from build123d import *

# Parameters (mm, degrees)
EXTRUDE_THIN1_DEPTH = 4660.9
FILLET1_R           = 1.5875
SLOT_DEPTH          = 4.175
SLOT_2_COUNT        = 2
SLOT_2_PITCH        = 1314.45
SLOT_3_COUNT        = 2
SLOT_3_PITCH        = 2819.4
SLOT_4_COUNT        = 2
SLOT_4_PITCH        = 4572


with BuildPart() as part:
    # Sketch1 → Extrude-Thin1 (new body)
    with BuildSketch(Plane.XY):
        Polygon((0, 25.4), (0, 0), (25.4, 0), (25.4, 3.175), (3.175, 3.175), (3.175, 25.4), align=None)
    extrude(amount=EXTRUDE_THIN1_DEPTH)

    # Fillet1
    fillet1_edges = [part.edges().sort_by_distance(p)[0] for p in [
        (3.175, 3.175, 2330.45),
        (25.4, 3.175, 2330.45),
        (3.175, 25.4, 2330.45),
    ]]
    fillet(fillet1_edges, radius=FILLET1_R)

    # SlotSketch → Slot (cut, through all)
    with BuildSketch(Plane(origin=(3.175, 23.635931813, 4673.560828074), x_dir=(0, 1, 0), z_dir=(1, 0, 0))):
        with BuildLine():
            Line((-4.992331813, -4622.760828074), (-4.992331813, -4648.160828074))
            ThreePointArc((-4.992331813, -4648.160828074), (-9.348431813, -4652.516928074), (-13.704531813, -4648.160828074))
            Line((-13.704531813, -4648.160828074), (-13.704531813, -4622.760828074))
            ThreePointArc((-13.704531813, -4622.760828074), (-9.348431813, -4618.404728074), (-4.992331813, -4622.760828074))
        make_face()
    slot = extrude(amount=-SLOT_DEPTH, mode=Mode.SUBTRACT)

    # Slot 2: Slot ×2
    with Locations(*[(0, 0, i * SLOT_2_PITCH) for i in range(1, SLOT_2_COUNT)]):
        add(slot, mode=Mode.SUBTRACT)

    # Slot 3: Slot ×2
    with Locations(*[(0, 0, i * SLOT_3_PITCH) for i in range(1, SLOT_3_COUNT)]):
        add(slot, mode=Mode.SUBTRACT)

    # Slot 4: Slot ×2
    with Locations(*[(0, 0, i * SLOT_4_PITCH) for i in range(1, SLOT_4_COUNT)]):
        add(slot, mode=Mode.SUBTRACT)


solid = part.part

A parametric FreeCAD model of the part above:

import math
import FreeCAD as App
import Part
import Sketcher
from FreeCAD import Vector
Q = App.Units.Quantity


def edges_at(feature, points):
    """Names of the edges that pass closest to the given points."""
    edges = feature.Shape.Edges
    near = lambda p: min(range(len(edges)), key=lambda i: edges[i].distToShape(Part.Vertex(*p))[0])
    return sorted({f"Edge{near(p) + 1}" for p in points})


def add_polygon(sketch, points):
    """Adds a closed chain of lines whose ends are joined by coincident constraints."""
    first, n = sketch.GeometryCount, len(points)
    for a, b in zip(points, points[1:] + points[:1]):
        sketch.addGeometry(Part.LineSegment(App.Vector(*a, 0), App.Vector(*b, 0)), False)
    for i in range(n):
        sketch.addConstraint(Sketcher.Constraint("Coincident", first + i, 2, first + (i + 1) % n, 1))

doc = App.newDocument("Part")
params = doc.addObject("Spreadsheet::Sheet", "Params")
for row, (alias, value) in enumerate([
    ("sketch1_width", "1 in"),
    ("sketch1_width2", "0.875 in"),
    ("pad1_length", "183.5 in"),
    ("fillet_radius", "0.0625 in"),
    ("sketch2_height", "1 in"),
    ("linearpattern_pitch", "51.75 in"),
    ("linearpattern2_pitch", "111 in"),
    ("linearpattern3_pitch", "180 in"),
], start=1):
    params.set(f"A{row}", alias)
    params.set(f"B{row}", "=" + value)
    params.setAlias(f"B{row}", alias)

body = doc.addObject("PartDesign::Body", "Body")

sketch1 = doc.addObject("Sketcher::SketchObject", "Sketch")
body.addObject(sketch1)
sketch1.AttachmentSupport = (doc.XY_Plane, [""])
sketch1.MapMode = "FlatFace"
add_polygon(sketch1, [(0, 25.4), (0, 0), (25.4, 0), (25.4, 3.175), (3.175, 3.175), (3.175, 25.4)])
sketch1.addConstraint(Sketcher.Constraint("Vertical", 0))
sketch1.addConstraint(Sketcher.Constraint("Horizontal", 1))
sketch1.addConstraint(Sketcher.Constraint("Vertical", 2))
sketch1.addConstraint(Sketcher.Constraint("Horizontal", 3))
sketch1.addConstraint(Sketcher.Constraint("Vertical", 4))
sketch1.addConstraint(Sketcher.Constraint("Horizontal", 5))
sketch1.addConstraint(Sketcher.Constraint("Coincident", 0, 2, -1, 1))
sketch1.addConstraint(Sketcher.Constraint("Equal", 1, 0))
sketch1.addConstraint(Sketcher.Constraint("Equal", 5, 2))
sketch1.addConstraint(Sketcher.Constraint("DistanceX", 1, 1, 1, 2, Q("1 in")))
sketch1.addConstraint(Sketcher.Constraint("DistanceX", 3, 2, 3, 1, Q("0.875 in")))
sketch1.setExpression("Constraints[15]", "Params.sketch1_width")
sketch1.setExpression("Constraints[16]", "Params.sketch1_width2")
pad1 = doc.addObject("PartDesign::Pad", "Pad")
body.addObject(pad1)
pad1.Profile = sketch1
pad1.setExpression("Length", "Params.pad1_length")
doc.recompute()

fillet = doc.addObject("PartDesign::Fillet", "Fillet")
body.addObject(fillet)
fillet.Base = (pad1, edges_at(pad1, [(3.175, 3.175, 2330.45), (25.4, 3.175, 2330.45), (3.175, 25.4, 2330.45)]))
fillet.setExpression("Radius", "Params.fillet_radius")

sketch2 = doc.addObject("Sketcher::SketchObject", "Sketch001")
body.addObject(sketch2)
sketch2.AttachmentSupport = (doc.YZ_Plane, [""])
sketch2.MapMode = "FlatFace"
sketch2.AttachmentOffset = App.Placement(Vector(0, 0, 0.125 * 25.4), App.Rotation())
sketch2.addGeometry(Part.LineSegment(Vector(18.6436, 25.4, 0), Vector(18.6436, 50.8, 0)), False)
sketch2.addGeometry(Part.ArcOfCircle(Part.Circle(Vector(14.2875, 50.8, 0), Vector(0, 0, 1), 4.3561), math.radians(0), math.radians(180)), False)
sketch2.addGeometry(Part.LineSegment(Vector(9.9314, 50.8, 0), Vector(9.9314, 25.4, 0)), False)
sketch2.addGeometry(Part.ArcOfCircle(Part.Circle(Vector(14.2875, 25.4, 0), Vector(0, 0, 1), 4.3561), math.radians(180), math.radians(360)), False)
sketch2.addConstraint(Sketcher.Constraint("Tangent", 0, 2, 1, 1))
sketch2.addConstraint(Sketcher.Constraint("Tangent", 1, 2, 2, 1))
sketch2.addConstraint(Sketcher.Constraint("Tangent", 2, 2, 3, 1))
sketch2.addConstraint(Sketcher.Constraint("Tangent", 3, 2, 0, 1))
sketch2.addConstraint(Sketcher.Constraint("Vertical", 0))
sketch2.addConstraint(Sketcher.Constraint("Vertical", 2))
sketch2.addConstraint(Sketcher.Constraint("DistanceY", 0, 1, 0, 2, Q("1 in")))
sketch2.addConstraint(Sketcher.Constraint("DistanceY", -1, 1, 1, 3, Q("2 in")))
sketch2.addConstraint(Sketcher.Constraint("Radius", 1, Q("0.1715 in")))
sketch2.addConstraint(Sketcher.Constraint("DistanceX", -1, 1, 1, 3, Q("0.5625 in")))
sketch2.setExpression("Constraints[6]", "Params.sketch2_height")
pocket1 = doc.addObject("PartDesign::Pocket", "Pocket")
body.addObject(pocket1)
pocket1.Profile = sketch2
pocket1.Type = "ThroughAll"
doc.recompute()

linearpattern = doc.addObject("PartDesign::LinearPattern", "LinearPattern")
body.addObject(linearpattern)
linearpattern.Originals = [pocket1]
linearpattern.Direction = (doc.Z_Axis, [""])
linearpattern.Mode = "offset"
linearpattern.setExpression("Offset", "Params.linearpattern_pitch")
linearpattern.Occurrences = 2
body.Tip = linearpattern
doc.recompute()

linearpattern2 = doc.addObject("PartDesign::LinearPattern", "LinearPattern001")
body.addObject(linearpattern2)
linearpattern2.Originals = [pocket1]
linearpattern2.Direction = (doc.Z_Axis, [""])
linearpattern2.Mode = "offset"
linearpattern2.setExpression("Offset", "Params.linearpattern2_pitch")
linearpattern2.Occurrences = 2
body.Tip = linearpattern2
doc.recompute()

linearpattern3 = doc.addObject("PartDesign::LinearPattern", "LinearPattern002")
body.addObject(linearpattern3)
linearpattern3.Originals = [pocket1]
linearpattern3.Direction = (doc.Z_Axis, [""])
linearpattern3.Mode = "offset"
linearpattern3.setExpression("Offset", "Params.linearpattern3_pitch")
linearpattern3.Occurrences = 2
body.Tip = linearpattern3

doc.recompute()
